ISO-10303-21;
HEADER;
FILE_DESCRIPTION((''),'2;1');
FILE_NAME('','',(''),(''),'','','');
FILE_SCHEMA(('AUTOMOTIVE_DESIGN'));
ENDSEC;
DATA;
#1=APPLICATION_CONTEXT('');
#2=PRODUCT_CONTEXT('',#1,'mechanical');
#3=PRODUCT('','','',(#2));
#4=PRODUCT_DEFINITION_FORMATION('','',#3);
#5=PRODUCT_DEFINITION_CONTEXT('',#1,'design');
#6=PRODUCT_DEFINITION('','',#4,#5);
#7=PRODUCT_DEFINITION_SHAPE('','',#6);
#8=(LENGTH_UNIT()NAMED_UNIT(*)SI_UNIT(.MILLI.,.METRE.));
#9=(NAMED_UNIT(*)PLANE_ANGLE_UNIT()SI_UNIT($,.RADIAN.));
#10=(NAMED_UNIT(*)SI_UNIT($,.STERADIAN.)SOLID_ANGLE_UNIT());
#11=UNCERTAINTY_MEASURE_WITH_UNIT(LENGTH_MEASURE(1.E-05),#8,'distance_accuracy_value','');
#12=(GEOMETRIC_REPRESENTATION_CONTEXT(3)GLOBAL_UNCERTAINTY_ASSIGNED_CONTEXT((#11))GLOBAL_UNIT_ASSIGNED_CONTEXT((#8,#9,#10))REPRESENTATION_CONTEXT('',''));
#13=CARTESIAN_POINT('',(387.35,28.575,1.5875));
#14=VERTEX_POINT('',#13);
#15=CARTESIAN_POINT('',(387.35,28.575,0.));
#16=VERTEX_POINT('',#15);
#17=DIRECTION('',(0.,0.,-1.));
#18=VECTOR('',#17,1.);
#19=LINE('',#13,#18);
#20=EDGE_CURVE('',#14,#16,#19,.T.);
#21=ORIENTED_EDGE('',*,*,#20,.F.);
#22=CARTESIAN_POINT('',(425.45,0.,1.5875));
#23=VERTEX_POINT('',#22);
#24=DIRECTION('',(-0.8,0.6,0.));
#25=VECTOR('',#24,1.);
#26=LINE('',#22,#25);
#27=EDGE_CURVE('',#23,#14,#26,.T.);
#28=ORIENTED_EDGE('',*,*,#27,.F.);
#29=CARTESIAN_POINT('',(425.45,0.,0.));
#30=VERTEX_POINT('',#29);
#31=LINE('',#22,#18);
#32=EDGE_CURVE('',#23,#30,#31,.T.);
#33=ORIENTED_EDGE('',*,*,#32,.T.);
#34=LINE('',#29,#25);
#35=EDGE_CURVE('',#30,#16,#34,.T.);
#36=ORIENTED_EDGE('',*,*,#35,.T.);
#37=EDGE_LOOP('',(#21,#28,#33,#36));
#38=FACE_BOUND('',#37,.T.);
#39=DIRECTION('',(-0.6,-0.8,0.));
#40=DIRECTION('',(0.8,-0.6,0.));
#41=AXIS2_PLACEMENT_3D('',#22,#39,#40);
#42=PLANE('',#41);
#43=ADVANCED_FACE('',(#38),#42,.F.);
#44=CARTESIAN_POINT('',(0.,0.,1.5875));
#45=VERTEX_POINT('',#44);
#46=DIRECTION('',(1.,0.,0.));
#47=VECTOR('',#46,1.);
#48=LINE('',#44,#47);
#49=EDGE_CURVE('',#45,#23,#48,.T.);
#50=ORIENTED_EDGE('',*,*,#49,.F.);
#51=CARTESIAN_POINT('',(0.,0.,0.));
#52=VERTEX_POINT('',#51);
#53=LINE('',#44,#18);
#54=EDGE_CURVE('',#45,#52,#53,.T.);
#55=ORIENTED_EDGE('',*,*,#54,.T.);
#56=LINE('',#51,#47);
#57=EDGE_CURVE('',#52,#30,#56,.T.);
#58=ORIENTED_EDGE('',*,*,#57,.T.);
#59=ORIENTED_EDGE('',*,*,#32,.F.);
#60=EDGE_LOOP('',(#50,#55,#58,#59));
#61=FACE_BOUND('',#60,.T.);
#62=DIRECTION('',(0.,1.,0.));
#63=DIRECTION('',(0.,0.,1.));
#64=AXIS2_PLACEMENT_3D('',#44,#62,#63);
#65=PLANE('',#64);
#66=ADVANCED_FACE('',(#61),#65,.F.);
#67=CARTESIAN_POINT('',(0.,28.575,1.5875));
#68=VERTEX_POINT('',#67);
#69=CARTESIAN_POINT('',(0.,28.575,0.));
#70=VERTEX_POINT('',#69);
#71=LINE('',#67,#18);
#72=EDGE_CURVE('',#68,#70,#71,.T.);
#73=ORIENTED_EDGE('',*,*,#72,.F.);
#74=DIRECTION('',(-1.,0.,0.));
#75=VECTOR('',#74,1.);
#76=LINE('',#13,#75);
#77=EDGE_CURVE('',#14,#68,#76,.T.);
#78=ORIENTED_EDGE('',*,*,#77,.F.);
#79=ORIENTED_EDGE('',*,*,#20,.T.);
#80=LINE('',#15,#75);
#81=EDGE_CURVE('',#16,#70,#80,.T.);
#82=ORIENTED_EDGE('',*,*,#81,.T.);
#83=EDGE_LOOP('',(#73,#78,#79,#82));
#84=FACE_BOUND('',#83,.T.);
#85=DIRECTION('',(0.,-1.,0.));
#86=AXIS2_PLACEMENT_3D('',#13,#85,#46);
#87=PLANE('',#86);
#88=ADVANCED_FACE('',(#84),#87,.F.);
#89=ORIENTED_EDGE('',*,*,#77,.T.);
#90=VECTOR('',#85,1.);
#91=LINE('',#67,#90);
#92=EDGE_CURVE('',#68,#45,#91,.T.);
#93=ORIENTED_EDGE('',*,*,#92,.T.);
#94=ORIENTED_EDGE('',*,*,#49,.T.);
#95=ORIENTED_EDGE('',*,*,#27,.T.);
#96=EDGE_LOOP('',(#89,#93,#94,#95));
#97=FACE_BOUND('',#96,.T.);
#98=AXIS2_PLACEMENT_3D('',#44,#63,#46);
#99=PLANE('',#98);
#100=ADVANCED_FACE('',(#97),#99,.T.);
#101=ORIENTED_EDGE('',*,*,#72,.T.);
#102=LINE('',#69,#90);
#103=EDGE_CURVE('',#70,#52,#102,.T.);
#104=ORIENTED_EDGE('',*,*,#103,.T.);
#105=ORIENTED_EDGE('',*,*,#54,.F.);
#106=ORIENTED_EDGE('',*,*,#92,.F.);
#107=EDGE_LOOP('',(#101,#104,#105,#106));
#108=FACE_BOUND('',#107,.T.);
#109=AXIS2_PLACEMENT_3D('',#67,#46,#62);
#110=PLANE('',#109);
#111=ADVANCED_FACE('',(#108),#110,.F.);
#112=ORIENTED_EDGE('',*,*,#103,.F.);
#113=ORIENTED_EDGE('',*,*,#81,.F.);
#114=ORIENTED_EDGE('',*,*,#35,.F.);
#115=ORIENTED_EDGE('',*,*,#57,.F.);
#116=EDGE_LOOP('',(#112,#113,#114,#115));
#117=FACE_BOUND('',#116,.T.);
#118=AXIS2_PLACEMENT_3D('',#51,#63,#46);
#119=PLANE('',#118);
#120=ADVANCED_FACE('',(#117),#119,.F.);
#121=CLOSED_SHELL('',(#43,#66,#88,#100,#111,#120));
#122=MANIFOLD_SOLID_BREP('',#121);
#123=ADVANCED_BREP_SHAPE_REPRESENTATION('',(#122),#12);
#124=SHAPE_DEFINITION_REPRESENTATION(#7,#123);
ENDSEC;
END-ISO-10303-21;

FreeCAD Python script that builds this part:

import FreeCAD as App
import Part
import Sketcher

V = App.Vector
Q = App.Units.Quantity


def add_polygon(sketch, points):
    """Adds a closed chain of lines whose ends are joined by coincident constraints."""
    first, n = sketch.GeometryCount, len(points)
    for a, b in zip(points, points[1:] + points[:1]):
        sketch.addGeometry(Part.LineSegment(App.Vector(*a, 0), App.Vector(*b, 0)), False)
    for i in range(n):
        sketch.addConstraint(Sketcher.Constraint("Coincident", first + i, 2, first + (i + 1) % n, 1))

doc = App.newDocument("Part")
params = doc.addObject("Spreadsheet::Sheet", "Params")
for row, (alias, value) in enumerate([
    ("sketch1_width", "16.75 in"),
    ("sketch1_width2", "15.25 in"),
    ("sketch1_height", "1.125 in"),
    ("pad1_length", "0.0625 in"),
], start=1):
    params.set(f"A{row}", alias)
    params.set(f"B{row}", "=" + value)
    params.setAlias(f"B{row}", alias)

body = doc.addObject("PartDesign::Body", "Body")

# Sketch on XY plane
sketch1 = body.newObject("Sketcher::SketchObject", "Sketch")
sketch1.AttachmentSupport = (doc.getObject("XY_Plane"), [""])
sketch1.MapMode = "FlatFace"
add_polygon(sketch1, [(0, 0), (425.45, 0), (387.35, 28.575), (0, 28.575)])  # lines 0-3
sketch1.addConstraint(Sketcher.Constraint("Horizontal", 0))
sketch1.addConstraint(Sketcher.Constraint("Horizontal", 2))
sketch1.addConstraint(Sketcher.Constraint("Vertical", 3))
sketch1.addConstraint(Sketcher.Constraint("Coincident", 3, 2, -1, 1))
sketch1.addConstraint(Sketcher.Constraint("DistanceX", 0, 1, 0, 2, Q("16.75 in")))
sketch1.addConstraint(Sketcher.Constraint("DistanceX", 2, 2, 2, 1, Q("15.25 in")))
sketch1.addConstraint(Sketcher.Constraint("DistanceY", 3, 2, 3, 1, Q("1.125 in")))
sketch1.setExpression("Constraints[8]", "Params.sketch1_width")
sketch1.setExpression("Constraints[9]", "Params.sketch1_width2")
sketch1.setExpression("Constraints[10]", "Params.sketch1_height")
pad1 = body.newObject("PartDesign::Pad", "Pad")
pad1.Profile = sketch1
pad1.setExpression("Length", "Params.pad1_length")

doc.recompute()
